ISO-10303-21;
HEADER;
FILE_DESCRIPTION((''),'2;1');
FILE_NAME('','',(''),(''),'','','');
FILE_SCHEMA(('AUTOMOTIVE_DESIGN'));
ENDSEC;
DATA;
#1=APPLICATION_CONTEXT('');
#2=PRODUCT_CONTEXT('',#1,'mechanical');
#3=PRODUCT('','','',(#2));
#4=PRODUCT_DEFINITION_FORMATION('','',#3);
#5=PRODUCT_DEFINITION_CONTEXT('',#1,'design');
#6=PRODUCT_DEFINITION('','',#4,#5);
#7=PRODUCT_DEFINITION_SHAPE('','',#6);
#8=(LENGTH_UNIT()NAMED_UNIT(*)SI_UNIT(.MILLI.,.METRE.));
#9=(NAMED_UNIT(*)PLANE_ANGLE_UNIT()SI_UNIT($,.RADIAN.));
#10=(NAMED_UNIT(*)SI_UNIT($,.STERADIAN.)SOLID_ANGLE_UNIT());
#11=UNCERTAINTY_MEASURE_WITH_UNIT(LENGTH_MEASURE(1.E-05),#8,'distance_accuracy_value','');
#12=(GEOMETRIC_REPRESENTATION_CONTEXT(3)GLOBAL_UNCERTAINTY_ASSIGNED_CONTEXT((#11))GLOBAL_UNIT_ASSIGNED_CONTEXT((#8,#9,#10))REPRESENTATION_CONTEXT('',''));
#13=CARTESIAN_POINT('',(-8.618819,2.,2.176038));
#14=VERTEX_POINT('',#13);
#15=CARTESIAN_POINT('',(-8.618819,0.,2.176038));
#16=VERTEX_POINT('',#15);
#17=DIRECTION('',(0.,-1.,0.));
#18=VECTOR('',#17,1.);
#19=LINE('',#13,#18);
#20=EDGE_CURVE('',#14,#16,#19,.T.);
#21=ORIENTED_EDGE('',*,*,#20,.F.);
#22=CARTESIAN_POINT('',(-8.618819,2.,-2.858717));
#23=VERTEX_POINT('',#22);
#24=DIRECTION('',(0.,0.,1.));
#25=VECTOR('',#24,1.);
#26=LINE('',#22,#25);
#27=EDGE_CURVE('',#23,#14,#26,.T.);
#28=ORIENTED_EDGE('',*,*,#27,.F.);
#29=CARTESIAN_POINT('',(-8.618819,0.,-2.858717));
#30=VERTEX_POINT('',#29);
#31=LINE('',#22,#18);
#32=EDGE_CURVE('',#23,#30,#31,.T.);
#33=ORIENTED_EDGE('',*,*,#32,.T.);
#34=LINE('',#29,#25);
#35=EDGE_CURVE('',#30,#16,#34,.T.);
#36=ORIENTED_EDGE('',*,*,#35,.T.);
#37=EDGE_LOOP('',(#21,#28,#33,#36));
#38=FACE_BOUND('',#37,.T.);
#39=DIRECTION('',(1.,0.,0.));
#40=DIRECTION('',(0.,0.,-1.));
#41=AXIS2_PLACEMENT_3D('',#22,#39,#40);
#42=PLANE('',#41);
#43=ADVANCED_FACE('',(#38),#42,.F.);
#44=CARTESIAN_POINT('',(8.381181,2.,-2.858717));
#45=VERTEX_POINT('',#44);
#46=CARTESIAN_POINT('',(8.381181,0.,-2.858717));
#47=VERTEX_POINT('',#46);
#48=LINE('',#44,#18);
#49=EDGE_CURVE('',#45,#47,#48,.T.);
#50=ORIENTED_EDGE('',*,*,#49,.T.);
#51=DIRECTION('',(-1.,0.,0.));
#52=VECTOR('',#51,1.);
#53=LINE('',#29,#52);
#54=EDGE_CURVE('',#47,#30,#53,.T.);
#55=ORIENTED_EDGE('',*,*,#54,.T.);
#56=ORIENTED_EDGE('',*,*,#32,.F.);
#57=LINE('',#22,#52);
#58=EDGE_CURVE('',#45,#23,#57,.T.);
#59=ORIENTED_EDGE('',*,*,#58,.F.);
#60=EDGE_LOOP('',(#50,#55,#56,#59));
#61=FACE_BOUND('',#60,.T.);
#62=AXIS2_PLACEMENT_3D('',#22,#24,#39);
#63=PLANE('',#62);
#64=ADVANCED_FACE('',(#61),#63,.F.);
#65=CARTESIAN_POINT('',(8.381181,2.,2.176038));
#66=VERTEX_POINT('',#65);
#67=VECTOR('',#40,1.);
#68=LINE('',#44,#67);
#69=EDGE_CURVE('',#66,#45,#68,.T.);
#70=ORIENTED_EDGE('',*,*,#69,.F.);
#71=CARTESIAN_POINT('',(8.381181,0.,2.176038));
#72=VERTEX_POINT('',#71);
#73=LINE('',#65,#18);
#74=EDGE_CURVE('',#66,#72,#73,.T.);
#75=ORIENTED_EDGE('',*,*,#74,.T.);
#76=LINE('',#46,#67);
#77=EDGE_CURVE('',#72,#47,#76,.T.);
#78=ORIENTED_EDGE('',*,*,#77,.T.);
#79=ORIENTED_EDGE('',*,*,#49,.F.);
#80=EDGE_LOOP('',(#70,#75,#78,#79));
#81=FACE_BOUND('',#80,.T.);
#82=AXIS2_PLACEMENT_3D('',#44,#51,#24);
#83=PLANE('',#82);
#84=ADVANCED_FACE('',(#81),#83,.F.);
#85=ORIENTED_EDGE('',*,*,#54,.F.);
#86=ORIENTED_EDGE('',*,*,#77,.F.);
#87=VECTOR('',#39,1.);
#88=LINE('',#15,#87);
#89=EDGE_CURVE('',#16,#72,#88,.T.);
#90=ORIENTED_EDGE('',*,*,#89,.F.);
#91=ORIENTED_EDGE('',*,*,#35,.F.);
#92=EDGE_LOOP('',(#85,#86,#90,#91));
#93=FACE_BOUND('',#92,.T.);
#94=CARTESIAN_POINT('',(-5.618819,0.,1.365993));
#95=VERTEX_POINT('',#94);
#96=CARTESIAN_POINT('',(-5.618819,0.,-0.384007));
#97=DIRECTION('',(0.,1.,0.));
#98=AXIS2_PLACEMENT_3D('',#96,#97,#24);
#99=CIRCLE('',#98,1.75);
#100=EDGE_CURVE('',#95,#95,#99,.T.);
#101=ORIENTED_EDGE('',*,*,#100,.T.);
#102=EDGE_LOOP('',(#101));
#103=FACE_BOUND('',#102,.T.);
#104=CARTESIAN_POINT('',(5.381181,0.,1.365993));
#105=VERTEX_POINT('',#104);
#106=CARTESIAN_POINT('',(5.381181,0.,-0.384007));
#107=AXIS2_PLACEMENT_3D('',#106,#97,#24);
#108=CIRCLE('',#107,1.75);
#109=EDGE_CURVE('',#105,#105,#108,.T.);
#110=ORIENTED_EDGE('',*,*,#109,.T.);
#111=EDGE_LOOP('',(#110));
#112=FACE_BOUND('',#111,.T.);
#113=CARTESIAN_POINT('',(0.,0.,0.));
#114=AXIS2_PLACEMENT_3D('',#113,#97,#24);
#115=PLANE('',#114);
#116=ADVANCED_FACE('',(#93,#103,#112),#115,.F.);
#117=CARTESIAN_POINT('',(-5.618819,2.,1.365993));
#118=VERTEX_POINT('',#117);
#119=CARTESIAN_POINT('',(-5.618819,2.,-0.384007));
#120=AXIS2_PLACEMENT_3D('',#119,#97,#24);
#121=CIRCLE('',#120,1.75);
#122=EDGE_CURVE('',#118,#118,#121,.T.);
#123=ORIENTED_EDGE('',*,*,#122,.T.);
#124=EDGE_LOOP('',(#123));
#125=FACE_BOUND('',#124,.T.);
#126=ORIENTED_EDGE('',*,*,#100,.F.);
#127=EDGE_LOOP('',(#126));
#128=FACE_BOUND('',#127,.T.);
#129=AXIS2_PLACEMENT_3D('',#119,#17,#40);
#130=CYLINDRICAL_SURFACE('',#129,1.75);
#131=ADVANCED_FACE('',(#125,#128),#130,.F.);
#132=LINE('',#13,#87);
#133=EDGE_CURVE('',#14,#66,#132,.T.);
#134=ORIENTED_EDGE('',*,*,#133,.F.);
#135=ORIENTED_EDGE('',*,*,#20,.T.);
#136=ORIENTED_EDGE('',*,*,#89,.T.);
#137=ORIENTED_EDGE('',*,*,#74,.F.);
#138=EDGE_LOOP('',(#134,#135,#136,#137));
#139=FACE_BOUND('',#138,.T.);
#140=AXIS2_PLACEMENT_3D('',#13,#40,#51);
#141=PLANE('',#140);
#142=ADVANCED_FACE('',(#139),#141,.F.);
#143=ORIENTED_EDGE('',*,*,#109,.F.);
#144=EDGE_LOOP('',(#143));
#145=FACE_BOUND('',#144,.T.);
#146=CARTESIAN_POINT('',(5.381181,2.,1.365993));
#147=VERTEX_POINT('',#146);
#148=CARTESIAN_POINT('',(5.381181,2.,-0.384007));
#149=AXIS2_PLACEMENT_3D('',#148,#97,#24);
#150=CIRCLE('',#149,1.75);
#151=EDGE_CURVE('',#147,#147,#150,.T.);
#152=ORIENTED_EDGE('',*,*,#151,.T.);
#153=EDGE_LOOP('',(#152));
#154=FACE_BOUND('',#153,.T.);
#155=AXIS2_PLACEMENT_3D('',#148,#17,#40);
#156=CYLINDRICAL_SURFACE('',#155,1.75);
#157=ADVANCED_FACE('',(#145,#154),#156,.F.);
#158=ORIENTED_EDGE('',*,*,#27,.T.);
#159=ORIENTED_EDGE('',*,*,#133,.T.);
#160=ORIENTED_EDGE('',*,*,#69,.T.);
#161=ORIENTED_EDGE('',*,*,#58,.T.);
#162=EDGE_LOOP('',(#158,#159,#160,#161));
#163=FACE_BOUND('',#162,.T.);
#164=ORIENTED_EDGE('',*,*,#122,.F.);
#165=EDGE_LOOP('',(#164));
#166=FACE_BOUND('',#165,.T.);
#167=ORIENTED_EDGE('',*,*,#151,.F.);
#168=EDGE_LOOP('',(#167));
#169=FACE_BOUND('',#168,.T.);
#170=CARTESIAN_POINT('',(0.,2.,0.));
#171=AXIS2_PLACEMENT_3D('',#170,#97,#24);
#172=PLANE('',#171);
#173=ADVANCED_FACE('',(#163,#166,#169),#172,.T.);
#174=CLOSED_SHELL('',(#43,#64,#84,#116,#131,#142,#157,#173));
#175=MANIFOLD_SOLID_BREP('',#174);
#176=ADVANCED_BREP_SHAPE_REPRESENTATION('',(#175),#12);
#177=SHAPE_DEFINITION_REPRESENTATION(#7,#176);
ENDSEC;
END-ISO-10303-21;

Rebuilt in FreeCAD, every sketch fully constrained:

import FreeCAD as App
import Part
import Sketcher

V = App.Vector

doc = App.newDocument("Part")
params = doc.addObject("Spreadsheet::Sheet", "Params")
for row, (alias, value) in enumerate([
    ("sketch1_diameter", "3.5 mm"),
    ("sketch1_width", "17 mm"),
    ("pad1_length", "2 mm"),
], start=1):
    params.set(f"A{row}", alias)
    params.set(f"B{row}", "=" + value)
    params.setAlias(f"B{row}", alias)

body = doc.addObject("PartDesign::Body", "Body")

sketch1 = body.newObject("Sketcher::SketchObject", "Sketch")
sketch1.AttachmentSupport = (doc.getObject("XZ_Plane"), [""])
sketch1.MapMode = "FlatFace"
sketch1.addGeometry([
    Part.LineSegment(V(-8.6, -2.9, 0), V(-8.6, 2.2, 0)),
    Part.LineSegment(V(-8.6, 2.2, 0), V(8.4, 2.2, 0)),
    Part.LineSegment(V(8.4, 2.2, 0), V(8.4, -2.9, 0)),
    Part.LineSegment(V(8.4, -2.9, 0), V(-8.6, -2.9, 0)),
    Part.Circle(V(-5.6, -0.4, 0), V(0, 0, 1), 1.8),
    Part.Circle(V(5.4, -0.4, 0), V(0, 0, 1), 1.8),
], False)
sketch1.addConstraint([
    Sketcher.Constraint("Coincident", 0, 2, 1, 1),
    Sketcher.Constraint("Coincident", 1, 2, 2, 1),
    Sketcher.Constraint("Coincident", 2, 2, 3, 1),
    Sketcher.Constraint("Coincident", 3, 2, 0, 1),
    Sketcher.Constraint("Vertical", 0),
    Sketcher.Constraint("Horizontal", 1),
    Sketcher.Constraint("Vertical", 2),
    Sketcher.Constraint("Horizontal", 3),
    Sketcher.Constraint("Equal", 4, 5),
    Sketcher.Constraint("Horizontal", 4, 3, 5, 3),
    Sketcher.Constraint("Diameter", 4, 3.5),
    Sketcher.Constraint("DistanceX", 1, 1, 1, 2, 17.0),
    Sketcher.Constraint("DistanceX", 4, 3, 5, 3, 11.0),
    Sketcher.Constraint("DistanceX", 0, 2, 4, 3, 3.0),
    Sketcher.Constraint("DistanceY", 0, 1, 0, 2, 5.034755),
    Sketcher.Constraint("DistanceX", 4, 3, -1, 1, 5.618819),
    Sketcher.Constraint("DistanceY", -1, 1, 0, 2, 2.176038),
    Sketcher.Constraint("DistanceY", 2, 2, 5, 3, 2.47471),
])
sketch1.setExpression("Constraints[10]", "Params.sketch1_diameter")
sketch1.setExpression("Constraints[11]", "Params.sketch1_width")
pad1 = body.newObject("PartDesign::Pad", "Pad")
pad1.Profile = sketch1
pad1.setExpression("Length", "Params.pad1_length")
pad1.Reversed = True

doc.recompute()
